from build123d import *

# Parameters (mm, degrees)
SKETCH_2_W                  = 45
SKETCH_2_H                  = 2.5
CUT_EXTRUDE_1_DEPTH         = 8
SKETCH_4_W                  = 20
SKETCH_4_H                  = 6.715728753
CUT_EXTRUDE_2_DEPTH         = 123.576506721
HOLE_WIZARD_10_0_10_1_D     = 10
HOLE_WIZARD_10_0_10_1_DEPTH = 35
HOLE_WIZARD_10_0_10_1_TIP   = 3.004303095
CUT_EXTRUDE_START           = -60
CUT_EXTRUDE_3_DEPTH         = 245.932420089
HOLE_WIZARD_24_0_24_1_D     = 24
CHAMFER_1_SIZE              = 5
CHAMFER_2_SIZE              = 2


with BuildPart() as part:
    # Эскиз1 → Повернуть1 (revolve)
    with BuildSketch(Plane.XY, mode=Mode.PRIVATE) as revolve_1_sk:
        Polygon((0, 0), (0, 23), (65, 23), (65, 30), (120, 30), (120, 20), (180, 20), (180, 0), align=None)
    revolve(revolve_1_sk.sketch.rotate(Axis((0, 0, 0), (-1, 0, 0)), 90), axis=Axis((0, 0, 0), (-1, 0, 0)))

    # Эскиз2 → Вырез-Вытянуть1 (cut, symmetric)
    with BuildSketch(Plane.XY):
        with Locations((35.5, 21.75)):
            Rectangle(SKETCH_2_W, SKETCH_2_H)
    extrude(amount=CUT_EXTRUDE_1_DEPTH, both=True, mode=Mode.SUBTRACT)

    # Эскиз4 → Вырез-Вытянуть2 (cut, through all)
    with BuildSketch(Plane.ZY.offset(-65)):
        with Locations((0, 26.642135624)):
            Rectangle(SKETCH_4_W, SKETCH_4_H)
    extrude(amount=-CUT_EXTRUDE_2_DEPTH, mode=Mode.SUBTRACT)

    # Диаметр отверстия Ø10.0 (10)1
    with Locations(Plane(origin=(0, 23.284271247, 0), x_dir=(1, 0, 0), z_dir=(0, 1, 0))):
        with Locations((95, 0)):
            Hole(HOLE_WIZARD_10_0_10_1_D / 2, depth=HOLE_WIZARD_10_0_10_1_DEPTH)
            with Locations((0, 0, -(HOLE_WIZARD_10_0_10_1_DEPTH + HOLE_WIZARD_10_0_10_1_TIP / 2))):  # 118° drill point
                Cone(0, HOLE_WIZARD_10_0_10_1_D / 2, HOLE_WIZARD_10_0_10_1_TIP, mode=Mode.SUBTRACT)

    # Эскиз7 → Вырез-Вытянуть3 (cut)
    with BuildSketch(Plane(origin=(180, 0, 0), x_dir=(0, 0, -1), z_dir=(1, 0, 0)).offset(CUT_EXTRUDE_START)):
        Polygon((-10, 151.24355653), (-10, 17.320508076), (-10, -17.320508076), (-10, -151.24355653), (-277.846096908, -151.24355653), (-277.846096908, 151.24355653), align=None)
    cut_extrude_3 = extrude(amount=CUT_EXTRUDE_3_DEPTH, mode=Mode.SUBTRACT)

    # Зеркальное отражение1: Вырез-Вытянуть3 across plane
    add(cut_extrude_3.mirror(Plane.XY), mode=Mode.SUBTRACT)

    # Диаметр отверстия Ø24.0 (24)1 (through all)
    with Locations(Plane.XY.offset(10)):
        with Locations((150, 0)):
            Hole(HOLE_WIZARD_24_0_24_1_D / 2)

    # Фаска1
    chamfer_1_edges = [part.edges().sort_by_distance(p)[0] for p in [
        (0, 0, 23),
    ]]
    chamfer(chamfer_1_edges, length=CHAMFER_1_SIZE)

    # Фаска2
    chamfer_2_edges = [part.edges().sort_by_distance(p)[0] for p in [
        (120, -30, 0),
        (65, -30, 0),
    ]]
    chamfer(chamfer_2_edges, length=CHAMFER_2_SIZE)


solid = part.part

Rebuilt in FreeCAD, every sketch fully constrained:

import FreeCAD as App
import Part
import Sketcher
Q = App.Units.Quantity


def edges_at(feature, points):
    """Names of the edges that pass closest to the given points."""
    edges = feature.Shape.Edges
    near = lambda p: min(range(len(edges)), key=lambda i: edges[i].distToShape(Part.Vertex(*p))[0])
    return sorted({f"Edge{near(p) + 1}" for p in points})

doc = App.newDocument("Part")
body = doc.addObject("PartDesign::Body", "Body")

sketch1 = body.newObject("Sketcher::SketchObject", "Sketch")
sketch1.AttachmentSupport = (doc.getObject("XY_Plane"), [""])
sketch1.MapMode = "FlatFace"
sketch1.addGeometry([
    Part.LineSegment(App.Vector(0, 23, 0), App.Vector(0, 0, 0)),
    Part.LineSegment(App.Vector(0, 0, 0), App.Vector(180, 0, 0)),
    Part.LineSegment(App.Vector(180, 0, 0), App.Vector(180, 20, 0)),
    Part.LineSegment(App.Vector(180, 20, 0), App.Vector(120, 20, 0)),
    Part.LineSegment(App.Vector(120, 20, 0), App.Vector(120, 30, 0)),
    Part.LineSegment(App.Vector(120, 30, 0), App.Vector(65, 30, 0)),
    Part.LineSegment(App.Vector(65, 30, 0), App.Vector(65, 23, 0)),
    Part.LineSegment(App.Vector(65, 23, 0), App.Vector(0, 23, 0)),
], False)
sketch1.addConstraint([
    Sketcher.Constraint("Coincident", 0, 2, 1, 1),
    Sketcher.Constraint("Coincident", 1, 2, 2, 1),
    Sketcher.Constraint("Coincident", 2, 2, 3, 1),
    Sketcher.Constraint("Coincident", 3, 2, 4, 1),
    Sketcher.Constraint("Coincident", 4, 2, 5, 1),
    Sketcher.Constraint("Coincident", 5, 2, 6, 1),
    Sketcher.Constraint("Coincident", 6, 2, 7, 1),
    Sketcher.Constraint("Coincident", 7, 2, 0, 1),
    Sketcher.Constraint("Vertical", 0),
    Sketcher.Constraint("Horizontal", 1),
    Sketcher.Constraint("Vertical", 2),
    Sketcher.Constraint("Horizontal", 3),
    Sketcher.Constraint("Vertical", 4),
    Sketcher.Constraint("Horizontal", 5),
    Sketcher.Constraint("Vertical", 6),
    Sketcher.Constraint("Horizontal", 7),
    Sketcher.Constraint("Coincident", 0, 2, -1, 1),
    Sketcher.Constraint("DistanceX", 1, 1, 1, 2, Q("180 mm")),
    Sketcher.Constraint("DistanceX", 3, 2, 3, 1, Q("60 mm")),
    Sketcher.Constraint("DistanceX", 5, 2, 5, 1, Q("55 mm")),
    Sketcher.Constraint("DistanceY", 0, 2, 0, 1, Q("23 mm")),
    Sketcher.Constraint("DistanceY", 2, 1, 2, 2, Q("20 mm")),
    Sketcher.Constraint("DistanceY", 4, 1, 4, 2, Q("10 mm")),
])
revolution = body.newObject("PartDesign::Revolution", "Revolution")
revolution.Profile = sketch1
revolution.ReferenceAxis = (sketch1, ["H_Axis"])
revolution.Angle = 360

sketch2 = body.newObject("Sketcher::SketchObject", "Sketch001")
sketch2.AttachmentSupport = (doc.getObject("XY_Plane"), [""])
sketch2.MapMode = "FlatFace"
sketch2.addGeometry([
    Part.LineSegment(App.Vector(13, 23, 0), App.Vector(13, 20.5, 0)),
    Part.LineSegment(App.Vector(13, 20.5, 0), App.Vector(58, 20.5, 0)),
    Part.LineSegment(App.Vector(58, 20.5, 0), App.Vector(58, 23, 0)),
    Part.LineSegment(App.Vector(58, 23, 0), App.Vector(13, 23, 0)),
], False)
sketch2.addConstraint([
    Sketcher.Constraint("Coincident", 0, 2, 1, 1),
    Sketcher.Constraint("Coincident", 1, 2, 2, 1),
    Sketcher.Constraint("Coincident", 2, 2, 3, 1),
    Sketcher.Constraint("Coincident", 3, 2, 0, 1),
    Sketcher.Constraint("Vertical", 0),
    Sketcher.Constraint("Horizontal", 1),
    Sketcher.Constraint("Vertical", 2),
    Sketcher.Constraint("Horizontal", 3),
    Sketcher.Constraint("DistanceX", 1, 1, 1, 2, Q("45 mm")),
    Sketcher.Constraint("DistanceY", 0, 2, 0, 1, Q("2.5 mm")),
    Sketcher.Constraint("DistanceX", -1, 1, 0, 2, Q("13 mm")),
    Sketcher.Constraint("DistanceY", -1, 1, 2, 2, Q("23 mm")),
])
pocket1 = body.newObject("PartDesign::Pocket", "Pocket")
pocket1.Profile = sketch2
pocket1.Length = 16
pocket1.Midplane = True

sketch3 = body.newObject("Sketcher::SketchObject", "Sketch002")
sketch3.AttachmentSupport = (doc.getObject("YZ_Plane"), [""])
sketch3.MapMode = "FlatFace"
sketch3.AttachmentOffset = App.Placement(App.Vector(0, 0, 65), App.Rotation())
sketch3.addGeometry([
    Part.LineSegment(App.Vector(30, -10, 0), App.Vector(23, -10, 0)),
    Part.LineSegment(App.Vector(23, -10, 0), App.Vector(23, 10, 0)),
    Part.LineSegment(App.Vector(23, 10, 0), App.Vector(30, 10, 0)),
    Part.LineSegment(App.Vector(30, 10, 0), App.Vector(30, -10, 0)),
], False)
sketch3.addConstraint([
    Sketcher.Constraint("Coincident", 0, 2, 1, 1),
    Sketcher.Constraint("Coincident", 1, 2, 2, 1),
    Sketcher.Constraint("Coincident", 2, 2, 3, 1),
    Sketcher.Constraint("Coincident", 3, 2, 0, 1),
    Sketcher.Constraint("Horizontal", 0),
    Sketcher.Constraint("Vertical", 1),
    Sketcher.Constraint("Horizontal", 2),
    Sketcher.Constraint("Vertical", 3),
    Sketcher.Constraint("DistanceY", 1, 1, 1, 2, Q("20 mm")),
    Sketcher.Constraint("DistanceY", 0, 2, -1, 1, Q("10 mm")),
    Sketcher.Constraint("DistanceX", -1, 1, 2, 2, Q("30 mm")),
    Sketcher.Constraint("DistanceX", 0, 2, 0, 1, Q("6.715729 mm")),
])
pocket2 = body.newObject("PartDesign::Pocket", "Pocket001")
pocket2.Profile = sketch3
pocket2.Type = "ThroughAll"
pocket2.Reversed = True

sketch4 = body.newObject("Sketcher::SketchObject", "Sketch003")
sketch4.AttachmentSupport = (doc.getObject("XZ_Plane"), [""])
sketch4.MapMode = "FlatFace"
sketch4.AttachmentOffset = App.Placement(App.Vector(0, 0, -23.284271), App.Rotation())
sketch4.addGeometry(Part.Circle(App.Vector(95, 0, 0), App.Vector(0, 0, 1), 5), False)
sketch4.addConstraint([
    Sketcher.Constraint("PointOnObject", 0, 3, -1),
    Sketcher.Constraint("Diameter", 0, Q("10 mm")),
    Sketcher.Constraint("DistanceX", -1, 1, 0, 3, Q("95 mm")),
])
doc.recompute()
hole = body.newObject("PartDesign::Hole", "Hole")
hole.Profile = sketch4
hole.ThreadType = "None"
hole.Diameter = 10
hole.DepthType = "Dimension"
hole.Depth = 35
hole.DrillPoint = "Angled"
hole.DrillPointAngle = 118
hole.Reversed = True

sketch5 = body.newObject("Sketcher::SketchObject", "Sketch004")
sketch5.AttachmentSupport = (doc.getObject("YZ_Plane"), [""])
sketch5.MapMode = "FlatFace"
sketch5.AttachmentOffset = App.Placement(App.Vector(0, 0, 120), App.Rotation())
sketch5.addGeometry([
    Part.LineSegment(App.Vector(-151, 10, 0), App.Vector(151, 10, 0)),
    Part.LineSegment(App.Vector(151, 10, 0), App.Vector(151, 278, 0)),
    Part.LineSegment(App.Vector(151, 278, 0), App.Vector(-151, 278, 0)),
    Part.LineSegment(App.Vector(-151, 278, 0), App.Vector(-151, 10, 0)),
], False)
sketch5.addConstraint([
    Sketcher.Constraint("Coincident", 0, 2, 1, 1),
    Sketcher.Constraint("Coincident", 1, 2, 2, 1),
    Sketcher.Constraint("Coincident", 2, 2, 3, 1),
    Sketcher.Constraint("Coincident", 3, 2, 0, 1),
    Sketcher.Constraint("Horizontal", 0),
    Sketcher.Constraint("Vertical", 1),
    Sketcher.Constraint("Horizontal", 2),
    Sketcher.Constraint("Vertical", 3),
    Sketcher.Constraint("DistanceY", -1, 1, 0, 2, Q("10 mm")),
    Sketcher.Constraint("DistanceX", 0, 1, 0, 2, Q("302.487113 mm")),
    Sketcher.Constraint("DistanceY", 1, 1, 1, 2, Q("267.846097 mm")),
    Sketcher.Constraint("DistanceX", -1, 1, 0, 2, Q("151.243557 mm")),
])
pocket3 = body.newObject("PartDesign::Pocket", "Pocket002")
pocket3.Profile = sketch5
pocket3.Length = 245.93242
pocket3.Reversed = True
doc.recompute()

mirrored = body.newObject("PartDesign::Mirrored", "Mirrored")
mirrored.Originals = [pocket3]
mirrored.MirrorPlane = (doc.getObject("XY_Plane"), [""])
body.Tip = mirrored

sketch6 = body.newObject("Sketcher::SketchObject", "Sketch005")
sketch6.AttachmentSupport = (doc.getObject("XY_Plane"), [""])
sketch6.MapMode = "FlatFace"
sketch6.AttachmentOffset = App.Placement(App.Vector(0, 0, 10), App.Rotation())
sketch6.addGeometry(Part.Circle(App.Vector(150, 0, 0), App.Vector(0, 0, 1), 12), False)
sketch6.addConstraint([
    Sketcher.Constraint("PointOnObject", 0, 3, -1),
    Sketcher.Constraint("Diameter", 0, Q("24 mm")),
    Sketcher.Constraint("DistanceX", -1, 1, 0, 3, Q("150 mm")),
])
doc.recompute()
hole2 = body.newObject("PartDesign::Hole", "Hole001")
hole2.Profile = sketch6
hole2.ThreadType = "None"
hole2.Diameter = 24
hole2.DepthType = "ThroughAll"
doc.recompute()

chamfer = body.newObject("PartDesign::Chamfer", "Chamfer")
chamfer.Base = (hole2, edges_at(hole2, [(0, 0, 23)]))
chamfer.Size = 5
doc.recompute()

chamfer2 = body.newObject("PartDesign::Chamfer", "Chamfer001")
chamfer2.Base = (chamfer, edges_at(chamfer, [(120, -30, 0), (65, -30, 0)]))
chamfer2.Size = 2

doc.recompute()
